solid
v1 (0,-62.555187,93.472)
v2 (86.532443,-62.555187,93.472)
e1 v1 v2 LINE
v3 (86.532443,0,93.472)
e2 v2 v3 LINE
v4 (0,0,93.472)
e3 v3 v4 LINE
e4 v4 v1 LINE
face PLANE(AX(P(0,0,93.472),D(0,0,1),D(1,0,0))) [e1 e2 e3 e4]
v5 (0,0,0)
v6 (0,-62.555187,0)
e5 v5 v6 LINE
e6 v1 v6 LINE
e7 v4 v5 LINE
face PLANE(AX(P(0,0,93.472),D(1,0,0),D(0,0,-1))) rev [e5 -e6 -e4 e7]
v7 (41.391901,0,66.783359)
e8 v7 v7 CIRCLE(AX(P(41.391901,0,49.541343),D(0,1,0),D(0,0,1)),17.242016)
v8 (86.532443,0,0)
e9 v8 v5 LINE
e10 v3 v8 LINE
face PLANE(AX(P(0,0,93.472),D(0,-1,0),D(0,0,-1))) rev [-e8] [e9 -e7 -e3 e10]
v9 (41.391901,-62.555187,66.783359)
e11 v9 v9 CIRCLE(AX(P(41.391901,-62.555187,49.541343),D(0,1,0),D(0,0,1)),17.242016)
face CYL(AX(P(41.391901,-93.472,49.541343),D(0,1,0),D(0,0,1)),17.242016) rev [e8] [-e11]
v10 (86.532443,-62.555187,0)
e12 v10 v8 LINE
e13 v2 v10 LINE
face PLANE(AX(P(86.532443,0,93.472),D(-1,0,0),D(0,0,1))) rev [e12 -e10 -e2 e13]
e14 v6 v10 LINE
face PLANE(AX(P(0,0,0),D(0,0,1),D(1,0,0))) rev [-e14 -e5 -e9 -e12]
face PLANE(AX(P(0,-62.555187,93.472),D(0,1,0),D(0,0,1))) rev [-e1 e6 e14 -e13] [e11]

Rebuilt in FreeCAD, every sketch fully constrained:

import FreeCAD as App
import Part
import Sketcher

V = App.Vector
Q = App.Units.Quantity

doc = App.newDocument("Part")
params = doc.addObject("Spreadsheet::Sheet", "Params")
for row, (alias, value) in enumerate([
    ("pad1_length", "3.68 in"),
    ("pocket1_length", "3.68 in"),
], start=1):
    params.set(f"A{row}", alias)
    params.set(f"B{row}", "=" + value)
    params.setAlias(f"B{row}", alias)

body = doc.addObject("PartDesign::Body", "Body")

sketch1 = doc.addObject("Sketcher::SketchObject", "Sketch")
body.addObject(sketch1)
sketch1.AttachmentSupport = (doc.XY_Plane, [""])
sketch1.MapMode = "FlatFace"
sketch1.addGeometry(Part.LineSegment(V(0, 0, 0), V(0, -62.555187, 0)), False)
sketch1.addGeometry(Part.LineSegment(V(0, -62.555187, 0), V(86.532443, -62.555187, 0)), False)
sketch1.addGeometry(Part.LineSegment(V(86.532443, -62.555187, 0), V(86.532443, 0, 0)), False)
sketch1.addGeometry(Part.LineSegment(V(86.532443, 0, 0), V(0, 0, 0)), False)
sketch1.addConstraint(Sketcher.Constraint("Coincident", 0, 2, 1, 1))
sketch1.addConstraint(Sketcher.Constraint("Coincident", 1, 2, 2, 1))
sketch1.addConstraint(Sketcher.Constraint("Coincident", 2, 2, 3, 1))
sketch1.addConstraint(Sketcher.Constraint("Coincident", 3, 2, 0, 1))
sketch1.addConstraint(Sketcher.Constraint("Vertical", 0))
sketch1.addConstraint(Sketcher.Constraint("Horizontal", 1))
sketch1.addConstraint(Sketcher.Constraint("Vertical", 2))
sketch1.addConstraint(Sketcher.Constraint("Horizontal", 3))
sketch1.addConstraint(Sketcher.Constraint("Coincident", 3, 2, -1, 1))
sketch1.addConstraint(Sketcher.Constraint("DistanceX", 1, 1, 1, 2, Q("86.532443 mm")))
sketch1.addConstraint(Sketcher.Constraint("DistanceY", 0, 2, 0, 1, Q("62.555187 mm")))
pad1 = doc.addObject("PartDesign::Pad", "Pad")
body.addObject(pad1)
pad1.Profile = sketch1
pad1.setExpression("Length", "Params.pad1_length")

sketch2 = doc.addObject("Sketcher::SketchObject", "Sketch001")
body.addObject(sketch2)
sketch2.AttachmentSupport = (doc.XZ_Plane, [""])
sketch2.MapMode = "FlatFace"
sketch2.addGeometry(Part.Circle(V(41.391901, 49.541343, 0), V(0, 0, 1), 17.242016), False)
sketch2.addConstraint(Sketcher.Constraint("Diameter", 0, Q("34.484031 mm")))
sketch2.addConstraint(Sketcher.Constraint("DistanceX", -1, 1, 0, 3, Q("41.391901 mm")))
sketch2.addConstraint(Sketcher.Constraint("DistanceY", -1, 1, 0, 3, Q("49.541343 mm")))
pocket1 = doc.addObject("PartDesign::Pocket", "Pocket")
body.addObject(pocket1)
pocket1.Profile = sketch2
pocket1.setExpression("Length", "Params.pocket1_length")
pocket1.Reversed = True

doc.recompute()
